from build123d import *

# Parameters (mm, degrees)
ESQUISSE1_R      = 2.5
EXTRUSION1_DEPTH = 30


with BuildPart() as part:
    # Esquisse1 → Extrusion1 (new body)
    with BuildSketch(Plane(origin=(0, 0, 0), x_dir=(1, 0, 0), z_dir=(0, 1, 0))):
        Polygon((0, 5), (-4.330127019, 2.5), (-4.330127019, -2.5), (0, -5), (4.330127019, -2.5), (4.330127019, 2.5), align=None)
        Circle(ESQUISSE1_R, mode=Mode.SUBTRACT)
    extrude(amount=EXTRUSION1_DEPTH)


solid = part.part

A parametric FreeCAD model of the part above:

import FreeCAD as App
import Part
import Sketcher

V = App.Vector
Q = App.Units.Quantity

doc = App.newDocument("Part")
body = doc.addObject("PartDesign::Body", "Body")

# Sketch on XZ plane
sketch1 = body.newObject("Sketcher::SketchObject", "Sketch")
sketch1.AttachmentSupport = (doc.getObject("XZ_Plane"), [""])
sketch1.MapMode = "FlatFace"
sketch1.addGeometry([
    Part.LineSegment(V(0, -5, 0), V(-4.3, -2.5, 0)),  # 0
    Part.LineSegment(V(-4.3, -2.5, 0), V(-4.3, 2.5, 0)),  # 1
    Part.LineSegment(V(-4.3, 2.5, 0), V(0, 5, 0)),  # 2
    Part.LineSegment(V(0, 5, 0), V(4.3, 2.5, 0)),  # 3
    Part.LineSegment(V(4.3, 2.5, 0), V(4.3, -2.5, 0)),  # 4
    Part.LineSegment(V(4.3, -2.5, 0), V(0, -5, 0)),  # 5
    Part.Circle(V(0, 0, 0), V(0, 0, 1), 2.5),  # 6
], False)
sketch1.addConstraint([
    Sketcher.Constraint("Coincident", 0, 2, 1, 1),
    Sketcher.Constraint("Coincident", 1, 2, 2, 1),
    Sketcher.Constraint("Coincident", 2, 2, 3, 1),
    Sketcher.Constraint("Coincident", 3, 2, 4, 1),
    Sketcher.Constraint("Coincident", 4, 2, 5, 1),
    Sketcher.Constraint("Coincident", 5, 2, 0, 1),
    Sketcher.Constraint("Vertical", 1),
    Sketcher.Constraint("Vertical", 4),
    Sketcher.Constraint("Coincident", 6, 3, -1, 1),
    Sketcher.Constraint("Symmetric", 0, 2, 3, 2, -1, 1),
    Sketcher.Constraint("Symmetric", 2, 2, 5, 2, -1, 1),
    Sketcher.Constraint("PointOnObject", 2, 2, -2),
    Sketcher.Constraint("Parallel", 2, 5),
    Sketcher.Constraint("Horizontal", 1, 2, 3, 2),
    Sketcher.Constraint("Diameter", 6, Q("5 mm")),
    Sketcher.Constraint("DistanceY", 1, 1, 1, 2, Q("5 mm")),
    Sketcher.Constraint("Angle", 0, Q("150 deg")),
    Sketcher.Constraint("Distance", 0, Q("5 mm")),
])
pad1 = body.newObject("PartDesign::Pad", "Pad")
pad1.Profile = sketch1
pad1.Length = 30
pad1.Reversed = True

doc.recompute()
